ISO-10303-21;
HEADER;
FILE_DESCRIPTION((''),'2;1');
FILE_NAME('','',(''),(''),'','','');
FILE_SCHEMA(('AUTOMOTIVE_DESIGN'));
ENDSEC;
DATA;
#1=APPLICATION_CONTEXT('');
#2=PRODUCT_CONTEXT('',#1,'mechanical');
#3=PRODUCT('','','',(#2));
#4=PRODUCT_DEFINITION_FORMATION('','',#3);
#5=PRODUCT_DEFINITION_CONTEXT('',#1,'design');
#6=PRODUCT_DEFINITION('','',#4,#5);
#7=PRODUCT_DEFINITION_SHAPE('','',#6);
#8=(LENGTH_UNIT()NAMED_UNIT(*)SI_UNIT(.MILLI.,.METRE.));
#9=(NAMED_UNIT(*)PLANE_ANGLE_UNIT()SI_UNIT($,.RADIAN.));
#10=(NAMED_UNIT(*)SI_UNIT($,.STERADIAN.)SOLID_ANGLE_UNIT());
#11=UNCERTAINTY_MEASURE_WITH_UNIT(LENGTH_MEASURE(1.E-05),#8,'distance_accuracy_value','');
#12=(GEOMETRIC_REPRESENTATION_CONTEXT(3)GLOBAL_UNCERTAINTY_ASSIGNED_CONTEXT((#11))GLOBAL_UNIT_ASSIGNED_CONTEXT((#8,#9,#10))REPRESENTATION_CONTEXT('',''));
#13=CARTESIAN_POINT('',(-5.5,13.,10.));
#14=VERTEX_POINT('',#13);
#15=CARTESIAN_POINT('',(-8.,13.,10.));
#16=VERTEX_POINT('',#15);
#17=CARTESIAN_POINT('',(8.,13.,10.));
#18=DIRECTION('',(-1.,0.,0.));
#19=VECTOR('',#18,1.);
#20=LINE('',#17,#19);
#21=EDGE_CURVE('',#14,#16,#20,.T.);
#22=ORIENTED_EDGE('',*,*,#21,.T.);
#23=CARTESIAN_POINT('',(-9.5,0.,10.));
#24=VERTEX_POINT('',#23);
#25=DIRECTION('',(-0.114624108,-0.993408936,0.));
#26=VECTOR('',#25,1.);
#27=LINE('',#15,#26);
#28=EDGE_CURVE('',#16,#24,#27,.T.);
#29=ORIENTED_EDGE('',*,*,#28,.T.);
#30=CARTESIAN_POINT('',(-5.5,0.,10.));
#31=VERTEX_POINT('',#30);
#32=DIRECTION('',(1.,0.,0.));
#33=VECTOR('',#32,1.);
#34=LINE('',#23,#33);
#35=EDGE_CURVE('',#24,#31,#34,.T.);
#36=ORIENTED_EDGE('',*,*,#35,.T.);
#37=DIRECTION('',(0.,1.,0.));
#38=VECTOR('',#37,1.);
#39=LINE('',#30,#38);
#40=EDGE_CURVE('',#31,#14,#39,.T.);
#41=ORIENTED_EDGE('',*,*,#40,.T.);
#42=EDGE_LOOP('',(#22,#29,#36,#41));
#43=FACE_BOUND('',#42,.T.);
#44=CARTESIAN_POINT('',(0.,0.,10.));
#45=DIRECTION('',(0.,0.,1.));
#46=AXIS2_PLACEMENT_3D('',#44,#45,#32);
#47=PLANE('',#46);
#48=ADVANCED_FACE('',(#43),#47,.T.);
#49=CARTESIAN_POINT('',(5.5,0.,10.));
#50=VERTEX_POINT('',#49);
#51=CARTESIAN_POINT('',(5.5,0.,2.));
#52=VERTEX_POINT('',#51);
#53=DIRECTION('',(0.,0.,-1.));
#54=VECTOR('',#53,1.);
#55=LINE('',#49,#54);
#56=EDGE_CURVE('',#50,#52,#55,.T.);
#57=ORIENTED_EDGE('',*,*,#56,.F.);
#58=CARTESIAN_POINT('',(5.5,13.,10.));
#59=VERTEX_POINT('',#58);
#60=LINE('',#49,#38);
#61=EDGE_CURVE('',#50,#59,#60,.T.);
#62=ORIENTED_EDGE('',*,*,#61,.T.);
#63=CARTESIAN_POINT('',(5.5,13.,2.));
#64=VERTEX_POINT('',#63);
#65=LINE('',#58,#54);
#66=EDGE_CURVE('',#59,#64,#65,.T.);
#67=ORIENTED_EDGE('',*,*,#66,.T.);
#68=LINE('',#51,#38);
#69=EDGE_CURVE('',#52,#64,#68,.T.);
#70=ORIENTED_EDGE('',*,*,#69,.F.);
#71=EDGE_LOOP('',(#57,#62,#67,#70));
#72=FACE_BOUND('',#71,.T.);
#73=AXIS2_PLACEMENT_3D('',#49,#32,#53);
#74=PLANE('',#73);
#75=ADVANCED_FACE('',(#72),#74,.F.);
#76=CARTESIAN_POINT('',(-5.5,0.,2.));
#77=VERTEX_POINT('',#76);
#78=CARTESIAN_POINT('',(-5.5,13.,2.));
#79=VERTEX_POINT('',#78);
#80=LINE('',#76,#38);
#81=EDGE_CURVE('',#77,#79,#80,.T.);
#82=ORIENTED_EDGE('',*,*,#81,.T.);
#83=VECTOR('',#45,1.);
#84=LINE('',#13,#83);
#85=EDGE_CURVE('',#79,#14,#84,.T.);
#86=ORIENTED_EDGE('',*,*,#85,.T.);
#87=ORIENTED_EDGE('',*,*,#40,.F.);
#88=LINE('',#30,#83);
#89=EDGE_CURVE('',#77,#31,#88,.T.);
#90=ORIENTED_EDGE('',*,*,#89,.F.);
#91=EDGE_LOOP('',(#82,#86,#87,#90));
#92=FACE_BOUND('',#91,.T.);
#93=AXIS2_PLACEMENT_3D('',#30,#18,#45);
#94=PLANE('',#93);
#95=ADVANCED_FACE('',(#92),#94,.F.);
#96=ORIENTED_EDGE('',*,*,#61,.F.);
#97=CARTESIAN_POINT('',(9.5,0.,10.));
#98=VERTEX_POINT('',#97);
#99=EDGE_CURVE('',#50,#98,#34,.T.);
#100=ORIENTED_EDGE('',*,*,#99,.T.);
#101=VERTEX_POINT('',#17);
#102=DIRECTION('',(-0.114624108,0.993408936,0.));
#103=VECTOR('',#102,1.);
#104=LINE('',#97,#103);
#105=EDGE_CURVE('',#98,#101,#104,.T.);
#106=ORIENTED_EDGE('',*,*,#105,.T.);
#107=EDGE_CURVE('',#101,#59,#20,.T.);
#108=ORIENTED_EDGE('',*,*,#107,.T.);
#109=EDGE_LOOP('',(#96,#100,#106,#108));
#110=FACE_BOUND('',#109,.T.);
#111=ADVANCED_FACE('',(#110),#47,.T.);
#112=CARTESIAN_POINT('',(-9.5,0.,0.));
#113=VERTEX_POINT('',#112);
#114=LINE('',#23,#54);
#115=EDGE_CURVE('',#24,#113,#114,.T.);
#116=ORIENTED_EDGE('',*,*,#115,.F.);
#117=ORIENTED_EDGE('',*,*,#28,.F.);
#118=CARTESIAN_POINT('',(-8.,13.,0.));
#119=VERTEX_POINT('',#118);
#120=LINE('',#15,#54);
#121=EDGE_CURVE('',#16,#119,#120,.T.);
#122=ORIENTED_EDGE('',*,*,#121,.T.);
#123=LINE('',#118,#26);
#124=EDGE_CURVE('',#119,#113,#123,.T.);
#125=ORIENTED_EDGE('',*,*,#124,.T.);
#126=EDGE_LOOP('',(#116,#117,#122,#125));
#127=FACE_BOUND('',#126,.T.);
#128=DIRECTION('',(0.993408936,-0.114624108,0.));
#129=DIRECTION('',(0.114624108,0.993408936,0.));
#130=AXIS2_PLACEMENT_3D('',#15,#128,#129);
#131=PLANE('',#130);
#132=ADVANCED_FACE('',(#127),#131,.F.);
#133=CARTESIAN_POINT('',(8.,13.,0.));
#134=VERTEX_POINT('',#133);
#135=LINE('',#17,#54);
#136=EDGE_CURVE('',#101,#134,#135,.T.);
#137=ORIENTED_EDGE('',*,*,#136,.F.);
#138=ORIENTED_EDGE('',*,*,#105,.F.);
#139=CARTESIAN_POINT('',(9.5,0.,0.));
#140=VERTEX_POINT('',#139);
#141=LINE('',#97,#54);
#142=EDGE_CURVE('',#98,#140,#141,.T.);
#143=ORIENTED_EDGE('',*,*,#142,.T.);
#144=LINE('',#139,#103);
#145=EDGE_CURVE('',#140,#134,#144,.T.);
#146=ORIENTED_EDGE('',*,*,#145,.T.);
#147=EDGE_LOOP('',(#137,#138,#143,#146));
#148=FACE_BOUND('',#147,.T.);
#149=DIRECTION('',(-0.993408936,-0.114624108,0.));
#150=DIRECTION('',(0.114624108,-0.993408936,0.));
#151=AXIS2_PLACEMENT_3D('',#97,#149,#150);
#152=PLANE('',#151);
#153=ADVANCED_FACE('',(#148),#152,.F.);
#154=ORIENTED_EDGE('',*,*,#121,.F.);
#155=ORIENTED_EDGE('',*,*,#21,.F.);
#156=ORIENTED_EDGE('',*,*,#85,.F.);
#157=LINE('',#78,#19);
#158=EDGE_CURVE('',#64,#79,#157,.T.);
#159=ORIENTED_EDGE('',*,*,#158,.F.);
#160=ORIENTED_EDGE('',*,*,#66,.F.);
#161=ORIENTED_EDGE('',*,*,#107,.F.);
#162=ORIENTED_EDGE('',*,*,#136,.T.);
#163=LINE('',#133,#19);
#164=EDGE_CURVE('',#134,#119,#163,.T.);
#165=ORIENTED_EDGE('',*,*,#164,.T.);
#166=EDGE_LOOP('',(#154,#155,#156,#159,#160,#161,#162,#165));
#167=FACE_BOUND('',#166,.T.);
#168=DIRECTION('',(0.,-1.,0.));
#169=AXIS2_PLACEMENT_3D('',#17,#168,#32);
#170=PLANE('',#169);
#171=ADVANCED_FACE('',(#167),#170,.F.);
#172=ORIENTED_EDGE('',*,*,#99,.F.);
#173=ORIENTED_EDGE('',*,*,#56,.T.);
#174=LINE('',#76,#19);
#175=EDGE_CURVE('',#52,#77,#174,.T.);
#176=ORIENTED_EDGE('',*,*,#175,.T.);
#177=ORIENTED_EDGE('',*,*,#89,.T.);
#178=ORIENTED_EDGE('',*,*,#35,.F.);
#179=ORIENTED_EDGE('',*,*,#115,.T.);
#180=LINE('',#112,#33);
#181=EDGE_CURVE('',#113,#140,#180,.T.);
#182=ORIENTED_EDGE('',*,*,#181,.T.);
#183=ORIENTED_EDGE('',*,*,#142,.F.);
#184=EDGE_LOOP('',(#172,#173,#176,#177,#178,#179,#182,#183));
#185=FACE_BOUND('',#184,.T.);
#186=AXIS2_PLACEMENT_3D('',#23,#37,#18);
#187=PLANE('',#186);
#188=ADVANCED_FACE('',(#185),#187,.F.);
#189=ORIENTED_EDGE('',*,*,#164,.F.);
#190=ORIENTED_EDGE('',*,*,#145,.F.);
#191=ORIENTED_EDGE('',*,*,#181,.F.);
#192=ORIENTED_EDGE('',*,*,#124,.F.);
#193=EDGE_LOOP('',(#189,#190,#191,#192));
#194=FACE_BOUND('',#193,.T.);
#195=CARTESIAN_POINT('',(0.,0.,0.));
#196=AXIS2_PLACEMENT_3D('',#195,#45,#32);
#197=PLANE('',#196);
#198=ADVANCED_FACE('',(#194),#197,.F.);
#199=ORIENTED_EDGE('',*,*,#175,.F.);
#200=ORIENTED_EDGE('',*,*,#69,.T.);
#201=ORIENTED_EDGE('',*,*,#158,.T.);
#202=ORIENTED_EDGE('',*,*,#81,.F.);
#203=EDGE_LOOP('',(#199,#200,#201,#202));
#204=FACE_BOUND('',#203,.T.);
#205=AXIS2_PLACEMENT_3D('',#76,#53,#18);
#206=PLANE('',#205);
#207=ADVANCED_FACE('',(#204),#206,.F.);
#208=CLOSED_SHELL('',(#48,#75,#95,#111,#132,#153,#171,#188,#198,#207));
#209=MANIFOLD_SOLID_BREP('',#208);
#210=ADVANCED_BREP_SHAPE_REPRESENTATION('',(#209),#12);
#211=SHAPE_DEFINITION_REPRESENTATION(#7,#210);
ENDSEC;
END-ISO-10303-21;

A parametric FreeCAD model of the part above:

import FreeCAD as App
import Part
import Sketcher
Q = App.Units.Quantity


def add_polygon(sketch, points):
    """Adds a closed chain of lines whose ends are joined by coincident constraints."""
    first, n = sketch.GeometryCount, len(points)
    for a, b in zip(points, points[1:] + points[:1]):
        sketch.addGeometry(Part.LineSegment(App.Vector(*a, 0), App.Vector(*b, 0)), False)
    for i in range(n):
        sketch.addConstraint(Sketcher.Constraint("Coincident", first + i, 2, first + (i + 1) % n, 1))

doc = App.newDocument("Part")
params = doc.addObject("Spreadsheet::Sheet", "Params")
for row, (alias, value) in enumerate([
    ("sketch1_width", "19 mm"),
    ("sketch1_width2", "16 mm"),
    ("pad1_length", "10 mm"),
    ("sketch2_width", "11 mm"),
    ("sketch2_height", "8 mm"),
], start=1):
    params.set(f"A{row}", alias)
    params.set(f"B{row}", "=" + value)
    params.setAlias(f"B{row}", alias)

body = doc.addObject("PartDesign::Body", "Body")

sketch1 = body.newObject("Sketcher::SketchObject", "Sketch")
sketch1.AttachmentSupport = (doc.getObject("XY_Plane"), [""])
sketch1.MapMode = "FlatFace"
add_polygon(sketch1, [(-10, 0), (10, 0), (8, 13), (-8, 13)])
sketch1.addConstraint([
    Sketcher.Constraint("Horizontal", 0),
    Sketcher.Constraint("Horizontal", 2),
    Sketcher.Constraint("Symmetric", 0, 2, 3, 2, -1, 1),
    Sketcher.Constraint("Equal", 1, 3),
    Sketcher.Constraint("DistanceX", 0, 1, 0, 2, Q("19 mm")),
    Sketcher.Constraint("DistanceX", 2, 2, 2, 1, Q("16 mm")),
    Sketcher.Constraint("DistanceY", -1, 1, 1, 2, Q("13 mm")),
])
sketch1.setExpression("Constraints[8]", "Params.sketch1_width")
sketch1.setExpression("Constraints[9]", "Params.sketch1_width2")
pad1 = body.newObject("PartDesign::Pad", "Pad")
pad1.Profile = sketch1
pad1.setExpression("Length", "Params.pad1_length")

sketch2 = body.newObject("Sketcher::SketchObject", "Sketch001")
sketch2.AttachmentSupport = (doc.getObject("XZ_Plane"), [""])
sketch2.MapMode = "FlatFace"
sketch2.AttachmentOffset = App.Placement(App.Vector(0, 0, -13), App.Rotation())
add_polygon(sketch2, [(-6, 2), (-6, 10), (6, 10), (6, 2)])
sketch2.addConstraint([
    Sketcher.Constraint("Vertical", 0),
    Sketcher.Constraint("Horizontal", 1),
    Sketcher.Constraint("Vertical", 2),
    Sketcher.Constraint("Horizontal", 3),
    Sketcher.Constraint("DistanceX", 1, 1, 1, 2, Q("11 mm")),
    Sketcher.Constraint("DistanceY", 0, 1, 0, 2, Q("8 mm")),
    Sketcher.Constraint("DistanceY", -1, 1, 0, 2, Q("10 mm")),
    Sketcher.Constraint("DistanceX", 0, 2, -1, 1, Q("5.5 mm")),
])
sketch2.setExpression("Constraints[8]", "Params.sketch2_width")
sketch2.setExpression("Constraints[9]", "Params.sketch2_height")
pocket1 = body.newObject("PartDesign::Pocket", "Pocket")
pocket1.Profile = sketch2
pocket1.Type = "ThroughAll"
pocket1.Reversed = True

doc.recompute()
